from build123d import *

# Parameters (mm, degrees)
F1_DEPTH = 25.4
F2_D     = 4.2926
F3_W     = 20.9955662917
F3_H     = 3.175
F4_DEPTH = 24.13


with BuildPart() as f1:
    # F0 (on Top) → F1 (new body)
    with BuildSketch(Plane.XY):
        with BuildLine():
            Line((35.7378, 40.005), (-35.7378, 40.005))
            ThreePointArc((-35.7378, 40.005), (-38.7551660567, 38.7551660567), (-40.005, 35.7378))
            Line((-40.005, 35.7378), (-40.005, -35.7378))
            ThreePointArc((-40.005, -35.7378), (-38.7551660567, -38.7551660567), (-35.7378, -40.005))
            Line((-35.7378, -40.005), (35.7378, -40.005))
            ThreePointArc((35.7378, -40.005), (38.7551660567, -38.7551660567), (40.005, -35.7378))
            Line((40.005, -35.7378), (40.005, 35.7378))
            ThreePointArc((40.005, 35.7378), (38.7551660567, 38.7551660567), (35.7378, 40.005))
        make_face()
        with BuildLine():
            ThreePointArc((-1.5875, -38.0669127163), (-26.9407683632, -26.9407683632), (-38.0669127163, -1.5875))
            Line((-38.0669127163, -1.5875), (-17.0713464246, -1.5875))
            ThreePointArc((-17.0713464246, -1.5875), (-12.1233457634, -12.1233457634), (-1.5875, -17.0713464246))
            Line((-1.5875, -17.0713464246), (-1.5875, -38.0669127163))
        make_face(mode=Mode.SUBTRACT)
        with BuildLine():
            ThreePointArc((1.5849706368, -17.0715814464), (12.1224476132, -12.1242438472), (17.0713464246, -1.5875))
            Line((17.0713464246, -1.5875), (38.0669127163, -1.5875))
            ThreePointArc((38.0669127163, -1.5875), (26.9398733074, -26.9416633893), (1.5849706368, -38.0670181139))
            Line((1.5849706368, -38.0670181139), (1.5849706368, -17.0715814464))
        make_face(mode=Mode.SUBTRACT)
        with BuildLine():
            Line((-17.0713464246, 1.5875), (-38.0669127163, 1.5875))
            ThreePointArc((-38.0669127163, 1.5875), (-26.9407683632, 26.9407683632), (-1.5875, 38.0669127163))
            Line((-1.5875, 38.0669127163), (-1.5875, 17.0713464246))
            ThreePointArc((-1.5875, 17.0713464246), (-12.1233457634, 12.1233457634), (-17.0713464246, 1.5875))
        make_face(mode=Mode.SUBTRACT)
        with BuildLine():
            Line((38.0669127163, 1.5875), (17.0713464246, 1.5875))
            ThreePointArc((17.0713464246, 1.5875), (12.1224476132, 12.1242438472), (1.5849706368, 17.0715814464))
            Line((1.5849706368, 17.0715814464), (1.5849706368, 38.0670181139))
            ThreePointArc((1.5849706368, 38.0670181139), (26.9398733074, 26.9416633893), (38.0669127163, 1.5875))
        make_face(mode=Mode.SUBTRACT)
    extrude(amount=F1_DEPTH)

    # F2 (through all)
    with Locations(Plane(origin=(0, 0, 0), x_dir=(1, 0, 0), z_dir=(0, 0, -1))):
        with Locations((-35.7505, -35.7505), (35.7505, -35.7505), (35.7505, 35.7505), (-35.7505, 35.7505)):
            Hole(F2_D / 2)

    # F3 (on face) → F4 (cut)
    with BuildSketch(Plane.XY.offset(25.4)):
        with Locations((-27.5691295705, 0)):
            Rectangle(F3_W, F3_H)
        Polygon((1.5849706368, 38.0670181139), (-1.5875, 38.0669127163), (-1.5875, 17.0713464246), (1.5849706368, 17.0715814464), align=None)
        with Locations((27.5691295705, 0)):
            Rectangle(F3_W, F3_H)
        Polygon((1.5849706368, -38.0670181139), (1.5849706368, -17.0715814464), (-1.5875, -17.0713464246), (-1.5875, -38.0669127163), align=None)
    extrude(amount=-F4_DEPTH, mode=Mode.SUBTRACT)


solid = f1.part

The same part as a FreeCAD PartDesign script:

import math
import FreeCAD as App
import Part
import Sketcher
from FreeCAD import Vector
Q = App.Units.Quantity

doc = App.newDocument("Part")
body = doc.addObject("PartDesign::Body", "Body")

sketch1 = body.newObject("Sketcher::SketchObject", "Sketch")
sketch1.AttachmentSupport = (doc.getObject("XY_Plane"), [""])
sketch1.MapMode = "FlatFace"
sketch1.addGeometry([
    Part.LineSegment(Vector(35.7, 40, 0), Vector(-35.7, 40, 0)),
    Part.ArcOfCircle(Part.Circle(Vector(-35.7, 35.7, 0), Vector(0, 0, 1), 4.3), math.radians(90), math.radians(180)),
    Part.LineSegment(Vector(-40, 35.7, 0), Vector(-40, -35.7, 0)),
    Part.ArcOfCircle(Part.Circle(Vector(-35.7, -35.7, 0), Vector(0, 0, 1), 4.3), math.radians(180), math.radians(270)),
    Part.LineSegment(Vector(-35.7, -40, 0), Vector(35.7, -40, 0)),
    Part.ArcOfCircle(Part.Circle(Vector(35.7, -35.7, 0), Vector(0, 0, 1), 4.3), math.radians(-90), math.radians(0)),
    Part.LineSegment(Vector(40, -35.7, 0), Vector(40, 35.7, 0)),
    Part.ArcOfCircle(Part.Circle(Vector(35.7, 35.7, 0), Vector(0, 0, 1), 4.3), math.radians(0), math.radians(90)),
    Part.LineSegment(Vector(-1.6, -17.1, 0), Vector(-1.6, -38.1, 0)),
    Part.ArcOfCircle(Part.Circle(Vector(0, 0, 0), Vector(0, 0, 1), 38.1), math.radians(-178), math.radians(-92)),
    Part.LineSegment(Vector(-38.1, -1.6, 0), Vector(-17.1, -1.6, 0)),
    Part.ArcOfCircle(Part.Circle(Vector(0, 0, 0), Vector(0, 0, 1), 17.1), math.radians(-175), math.radians(-95)),
    Part.LineSegment(Vector(1.6, -38.1, 0), Vector(1.6, -17.1, 0)),
    Part.ArcOfCircle(Part.Circle(Vector(0, 0, 0), Vector(0, 0, 1), 17.1), math.radians(-85), math.radians(-5)),
    Part.LineSegment(Vector(17.1, -1.6, 0), Vector(38.1, -1.6, 0)),
    Part.ArcOfCircle(Part.Circle(Vector(0, 0, 0), Vector(0, 0, 1), 38.1), math.radians(-88), math.radians(-2)),
    Part.ArcOfCircle(Part.Circle(Vector(0, 0, 0), Vector(0, 0, 1), 17.1), math.radians(95), math.radians(175)),
    Part.LineSegment(Vector(-17.1, 1.6, 0), Vector(-38.1, 1.6, 0)),
    Part.ArcOfCircle(Part.Circle(Vector(0, 0, 0), Vector(0, 0, 1), 38.1), math.radians(92), math.radians(178)),
    Part.LineSegment(Vector(-1.6, 38.1, 0), Vector(-1.6, 17.1, 0)),
    Part.ArcOfCircle(Part.Circle(Vector(0, 0, 0), Vector(0, 0, 1), 38.1), math.radians(2), math.radians(88)),
    Part.LineSegment(Vector(38.1, 1.6, 0), Vector(17.1, 1.6, 0)),
    Part.ArcOfCircle(Part.Circle(Vector(0, 0, 0), Vector(0, 0, 1), 17.1), math.radians(5), math.radians(85)),
    Part.LineSegment(Vector(1.6, 17.1, 0), Vector(1.6, 38.1, 0)),
], False)
sketch1.addConstraint([
    Sketcher.Constraint("Tangent", 0, 2, 1, 1),
    Sketcher.Constraint("Tangent", 1, 2, 2, 1),
    Sketcher.Constraint("Tangent", 2, 2, 3, 1),
    Sketcher.Constraint("Tangent", 3, 2, 4, 1),
    Sketcher.Constraint("Tangent", 4, 2, 5, 1),
    Sketcher.Constraint("Tangent", 5, 2, 6, 1),
    Sketcher.Constraint("Tangent", 6, 2, 7, 1),
    Sketcher.Constraint("Tangent", 7, 2, 0, 1),
    Sketcher.Constraint("Coincident", 8, 2, 9, 2),
    Sketcher.Constraint("Coincident", 9, 1, 10, 1),
    Sketcher.Constraint("Coincident", 10, 2, 11, 1),
    Sketcher.Constraint("Coincident", 11, 2, 8, 1),
    Sketcher.Constraint("Coincident", 12, 2, 13, 1),
    Sketcher.Constraint("Coincident", 13, 2, 14, 1),
    Sketcher.Constraint("Coincident", 14, 2, 15, 2),
    Sketcher.Constraint("Coincident", 15, 1, 12, 1),
    Sketcher.Constraint("Coincident", 16, 2, 17, 1),
    Sketcher.Constraint("Coincident", 17, 2, 18, 2),
    Sketcher.Constraint("Coincident", 18, 1, 19, 1),
    Sketcher.Constraint("Coincident", 19, 2, 16, 1),
    Sketcher.Constraint("Coincident", 20, 1, 21, 1),
    Sketcher.Constraint("Coincident", 21, 2, 22, 1),
    Sketcher.Constraint("Coincident", 22, 2, 23, 1),
    Sketcher.Constraint("Coincident", 23, 2, 20, 2),
    Sketcher.Constraint("Horizontal", 0),
    Sketcher.Constraint("Vertical", 2),
    Sketcher.Constraint("Horizontal", 4),
    Sketcher.Constraint("Vertical", 6),
    Sketcher.Constraint("Vertical", 8),
    Sketcher.Constraint("Horizontal", 10),
    Sketcher.Constraint("Vertical", 12),
    Sketcher.Constraint("Horizontal", 14),
    Sketcher.Constraint("Horizontal", 17),
    Sketcher.Constraint("Vertical", 19),
    Sketcher.Constraint("Horizontal", 21),
    Sketcher.Constraint("Vertical", 23),
    Sketcher.Constraint("Coincident", 9, 3, -1, 1),
    Sketcher.Constraint("Coincident", 11, 3, -1, 1),
    Sketcher.Constraint("Coincident", 13, 3, -1, 1),
    Sketcher.Constraint("Coincident", 15, 3, -1, 1),
    Sketcher.Constraint("Coincident", 16, 3, -1, 1),
    Sketcher.Constraint("Coincident", 18, 3, -1, 1),
    Sketcher.Constraint("Coincident", 20, 3, -1, 1),
    Sketcher.Constraint("Coincident", 22, 3, -1, 1),
    Sketcher.Constraint("Equal", 1, 3),
    Sketcher.Constraint("Equal", 3, 5),
    Sketcher.Constraint("Equal", 5, 7),
    Sketcher.Constraint("Equal", 11, 13),
    Sketcher.Constraint("Equal", 9, 15),
    Sketcher.Constraint("Equal", 13, 16),
    Sketcher.Constraint("Equal", 15, 18),
    Sketcher.Constraint("Equal", 18, 20),
    Sketcher.Constraint("Equal", 16, 22),
    Sketcher.Constraint("Symmetric", 1, 3, 5, 3, -1, 1),
    Sketcher.Constraint("Horizontal", 10, 2, 13, 2),
    Sketcher.Constraint("Horizontal", 17, 2, 20, 1),
    Sketcher.Constraint("Vertical", 10, 2, 16, 2),
    Sketcher.Constraint("Vertical", 11, 2, 18, 1),
    Sketcher.Constraint("Vertical", 15, 1, 22, 2),
    Sketcher.Constraint("Equal", 4, 2),
    Sketcher.Constraint("Equal", 21, 8),
    Sketcher.Constraint("Radius", 9, Q("1.5 in")),
    Sketcher.Constraint("Radius", 1, Q("0.168 in")),
    Sketcher.Constraint("Radius", 11, Q("0.675 in")),
    Sketcher.Constraint("DistanceX", 0, 2, 0, 1, Q("2.814 in")),
    Sketcher.Constraint("DistanceX", 8, 2, -1, 1, Q("0.0625 in")),
    Sketcher.Constraint("DistanceY", 12, 1, 12, 2, 20.995437),
])
pad1 = body.newObject("PartDesign::Pad", "Pad")
pad1.Profile = sketch1
pad1.Length = Q("1 in")

sketch2 = body.newObject("Sketcher::SketchObject", "Sketch001")
sketch2.AttachmentSupport = (doc.getObject("XY_Plane"), [""])
sketch2.MapMode = "FlatFace"
sketch2.addGeometry([
    Part.Circle(Vector(-35.8, 35.8, 0), Vector(0, 0, 1), 2.1),
    Part.Circle(Vector(35.8, 35.8, 0), Vector(0, 0, 1), 2.1),
    Part.Circle(Vector(35.8, -35.8, 0), Vector(0, 0, 1), 2.1),
    Part.Circle(Vector(-35.8, -35.8, 0), Vector(0, 0, 1), 2.1),
], False)
sketch2.addConstraint([
    Sketcher.Constraint("Equal", 0, 1),
    Sketcher.Constraint("Equal", 1, 2),
    Sketcher.Constraint("Equal", 2, 3),
    Sketcher.Constraint("Symmetric", 0, 3, 2, 3, -1, 1),
    Sketcher.Constraint("Symmetric", 1, 3, 3, 3, -1, 1),
    Sketcher.Constraint("Symmetric", 0, 3, 1, 3, -2),
    Sketcher.Constraint("Diameter", 0, Q("0.169 in")),
    Sketcher.Constraint("DistanceX", 0, 3, 1, 3, Q("2.815 in")),
    Sketcher.Constraint("DistanceY", 2, 3, 1, 3, Q("2.815 in")),
])
doc.recompute()
hole = body.newObject("PartDesign::Hole", "Hole")
hole.Profile = sketch2
hole.ThreadType = "None"
hole.Diameter = Q("0.169 in")
hole.DepthType = "ThroughAll"
hole.Reversed = True

sketch3 = body.newObject("Sketcher::SketchObject", "Sketch002")
sketch3.AttachmentSupport = (doc.getObject("XY_Plane"), [""])
sketch3.MapMode = "FlatFace"
sketch3.AttachmentOffset = App.Placement(Vector(0, 0, 1 * 25.4), App.Rotation())
sketch3.addGeometry([
    Part.LineSegment(Vector(-38.1, 1.6, 0), Vector(-38.1, -1.6, 0)),
    Part.LineSegment(Vector(-38.1, -1.6, 0), Vector(-17.1, -1.6, 0)),
    Part.LineSegment(Vector(-17.1, -1.6, 0), Vector(-17.1, 1.6, 0)),
    Part.LineSegment(Vector(-17.1, 1.6, 0), Vector(-38.1, 1.6, 0)),
    Part.LineSegment(Vector(1.6, 38.1, 0), Vector(-1.6, 38.1, 0)),
    Part.LineSegment(Vector(-1.6, 38.1, 0), Vector(-1.6, 17.1, 0)),
    Part.LineSegment(Vector(-1.6, 17.1, 0), Vector(1.6, 17.1, 0)),
    Part.LineSegment(Vector(1.6, 17.1, 0), Vector(1.6, 38.1, 0)),
    Part.LineSegment(Vector(17.1, 1.6, 0), Vector(17.1, -1.6, 0)),
    Part.LineSegment(Vector(17.1, -1.6, 0), Vector(38.1, -1.6, 0)),
    Part.LineSegment(Vector(38.1, -1.6, 0), Vector(38.1, 1.6, 0)),
    Part.LineSegment(Vector(38.1, 1.6, 0), Vector(17.1, 1.6, 0)),
    Part.LineSegment(Vector(1.6, -38.1, 0), Vector(1.6, -17.1, 0)),
    Part.LineSegment(Vector(1.6, -17.1, 0), Vector(-1.6, -17.1, 0)),
    Part.LineSegment(Vector(-1.6, -17.1, 0), Vector(-1.6, -38.1, 0)),
    Part.LineSegment(Vector(-1.6, -38.1, 0), Vector(1.6, -38.1, 0)),
], False)
sketch3.addConstraint([
    Sketcher.Constraint("Coincident", 0, 2, 1, 1),
    Sketcher.Constraint("Coincident", 1, 2, 2, 1),
    Sketcher.Constraint("Coincident", 2, 2, 3, 1),
    Sketcher.Constraint("Coincident", 3, 2, 0, 1),
    Sketcher.Constraint("Coincident", 4, 2, 5, 1),
    Sketcher.Constraint("Coincident", 5, 2, 6, 1),
    Sketcher.Constraint("Coincident", 6, 2, 7, 1),
    Sketcher.Constraint("Coincident", 7, 2, 4, 1),
    Sketcher.Constraint("Coincident", 8, 2, 9, 1),
    Sketcher.Constraint("Coincident", 9, 2, 10, 1),
    Sketcher.Constraint("Coincident", 10, 2, 11, 1),
    Sketcher.Constraint("Coincident", 11, 2, 8, 1),
    Sketcher.Constraint("Coincident", 12, 2, 13, 1),
    Sketcher.Constraint("Coincident", 13, 2, 14, 1),
    Sketcher.Constraint("Coincident", 14, 2, 15, 1),
    Sketcher.Constraint("Coincident", 15, 2, 12, 1),
    Sketcher.Constraint("Vertical", 0),
    Sketcher.Constraint("Horizontal", 1),
    Sketcher.Constraint("Vertical", 2),
    Sketcher.Constraint("Horizontal", 3),
    Sketcher.Constraint("Vertical", 5),
    Sketcher.Constraint("Vertical", 7),
    Sketcher.Constraint("Vertical", 8),
    Sketcher.Constraint("Horizontal", 9),
    Sketcher.Constraint("Vertical", 10),
    Sketcher.Constraint("Horizontal", 11),
    Sketcher.Constraint("Vertical", 12),
    Sketcher.Constraint("Vertical", 14),
    Sketcher.Constraint("Symmetric", 2, 2, 8, 2, -1, 1),
    Sketcher.Constraint("Symmetric", 0, 2, 10, 2, -1, 1),
    Sketcher.Constraint("Symmetric", 6, 2, 12, 2, -1),
    Sketcher.Constraint("Symmetric", 5, 2, 13, 2, -1),
    Sketcher.Constraint("Horizontal", 1, 2, 8, 2),
    Sketcher.Constraint("Equal", 11, 5),
    Sketcher.Constraint("Equal", 7, 12),
    Sketcher.Constraint("Equal", 5, 14),
    Sketcher.Constraint("DistanceY", 0, 2, 0, 1, Q("0.125 in")),
    Sketcher.Constraint("DistanceX", 4, 2, -1, 1, Q("0.0625 in")),
    Sketcher.Constraint("DistanceX", 6, 2, 8, 2, Q("0.6096998 in")),
    Sketcher.Constraint("Distance", 4, 3.172471),
    Sketcher.Constraint("DistanceX", 1, 1, 1, 2, 20.995566),
    Sketcher.Constraint("DistanceY", 7, 1, 7, 2, 20.995437),
    Sketcher.Constraint("DistanceY", -1, 1, 6, 2, 17.071581),
    Sketcher.Constraint("DistanceY", 6, 2, 4, 2, 20.995331),
])
pocket1 = body.newObject("PartDesign::Pocket", "Pocket")
pocket1.Profile = sketch3
pocket1.Length = Q("0.95 in")

doc.recompute()
